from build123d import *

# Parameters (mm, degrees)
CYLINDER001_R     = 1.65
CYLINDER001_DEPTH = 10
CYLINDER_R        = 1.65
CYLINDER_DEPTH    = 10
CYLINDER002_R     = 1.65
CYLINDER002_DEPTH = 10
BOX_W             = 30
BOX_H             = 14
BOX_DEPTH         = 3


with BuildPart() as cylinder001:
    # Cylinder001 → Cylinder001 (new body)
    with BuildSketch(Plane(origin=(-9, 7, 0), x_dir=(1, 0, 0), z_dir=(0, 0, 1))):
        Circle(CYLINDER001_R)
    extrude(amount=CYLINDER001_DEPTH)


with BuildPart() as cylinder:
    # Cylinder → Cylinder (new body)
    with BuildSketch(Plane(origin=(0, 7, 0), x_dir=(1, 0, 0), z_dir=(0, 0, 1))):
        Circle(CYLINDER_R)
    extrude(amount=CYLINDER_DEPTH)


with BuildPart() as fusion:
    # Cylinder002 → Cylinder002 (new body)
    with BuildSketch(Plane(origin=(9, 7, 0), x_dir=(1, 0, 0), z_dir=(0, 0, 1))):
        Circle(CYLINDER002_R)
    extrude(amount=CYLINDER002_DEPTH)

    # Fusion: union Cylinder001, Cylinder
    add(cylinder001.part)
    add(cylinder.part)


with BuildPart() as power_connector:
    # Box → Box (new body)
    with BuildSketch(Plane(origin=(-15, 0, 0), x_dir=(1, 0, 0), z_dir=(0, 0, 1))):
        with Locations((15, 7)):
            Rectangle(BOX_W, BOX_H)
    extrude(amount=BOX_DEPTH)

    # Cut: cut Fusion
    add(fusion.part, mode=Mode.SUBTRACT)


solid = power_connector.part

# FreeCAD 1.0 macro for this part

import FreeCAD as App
import Part
import Sketcher
from FreeCAD import Vector
Q = App.Units.Quantity


def add_polygon(sketch, points):
    """Adds a closed chain of lines whose ends are joined by coincident constraints."""
    first, n = sketch.GeometryCount, len(points)
    for a, b in zip(points, points[1:] + points[:1]):
        sketch.addGeometry(Part.LineSegment(App.Vector(*a, 0), App.Vector(*b, 0)), False)
    for i in range(n):
        sketch.addConstraint(Sketcher.Constraint("Coincident", first + i, 2, first + (i + 1) % n, 1))

doc = App.newDocument("Part")
body = doc.addObject("PartDesign::Body", "Body")

sketch1 = body.newObject("Sketcher::SketchObject", "Sketch")
sketch1.AttachmentSupport = (doc.getObject("XY_Plane"), [""])
sketch1.MapMode = "FlatFace"
sketch1.addGeometry(Part.Circle(Vector(-9, 7, 0), Vector(0, 0, 1), 1.6), False)
sketch1.addConstraint(Sketcher.Constraint("Diameter", 0, Q("3.3 mm")))
sketch1.addConstraint(Sketcher.Constraint("DistanceX", 0, 3, -1, 1, Q("9 mm")))
sketch1.addConstraint(Sketcher.Constraint("DistanceY", -1, 1, 0, 3, Q("7 mm")))
pad1 = body.newObject("PartDesign::Pad", "Pad")
pad1.Profile = sketch1
pad1.Length = 10
body2 = doc.addObject("PartDesign::Body", "Body001")

sketch2 = body2.newObject("Sketcher::SketchObject", "Sketch001")
sketch2.AttachmentSupport = (doc.getObject("XY_Plane001"), [""])
sketch2.MapMode = "FlatFace"
sketch2.addGeometry(Part.Circle(Vector(0, 7, 0), Vector(0, 0, 1), 1.6), False)
sketch2.addConstraint(Sketcher.Constraint("PointOnObject", 0, 3, -2))
sketch2.addConstraint(Sketcher.Constraint("Diameter", 0, Q("3.3 mm")))
sketch2.addConstraint(Sketcher.Constraint("DistanceY", -1, 1, 0, 3, Q("7 mm")))
pad2 = body2.newObject("PartDesign::Pad", "Pad001")
pad2.Profile = sketch2
pad2.Length = 10
body3 = doc.addObject("PartDesign::Body", "Body002")
body3.AllowCompound = True

sketch3 = body3.newObject("Sketcher::SketchObject", "Sketch002")
sketch3.AttachmentSupport = (doc.getObject("XY_Plane002"), [""])
sketch3.MapMode = "FlatFace"
sketch3.addGeometry(Part.Circle(Vector(9, 7, 0), Vector(0, 0, 1), 1.6), False)
sketch3.addConstraint(Sketcher.Constraint("Diameter", 0, Q("3.3 mm")))
sketch3.addConstraint(Sketcher.Constraint("DistanceX", -1, 1, 0, 3, Q("9 mm")))
sketch3.addConstraint(Sketcher.Constraint("DistanceY", -1, 1, 0, 3, Q("7 mm")))
pad3 = body3.newObject("PartDesign::Pad", "Pad002")
pad3.Profile = sketch3
pad3.Length = 10
doc.recompute()

boolean = body3.newObject("PartDesign::Boolean", "Boolean")
boolean.Type = "Fuse"
boolean.addObjects([body])
doc.recompute()

boolean2 = body3.newObject("PartDesign::Boolean", "Boolean001")
boolean2.Type = "Fuse"
boolean2.addObjects([body2])
body4 = doc.addObject("PartDesign::Body", "Body003")

sketch4 = body4.newObject("Sketcher::SketchObject", "Sketch003")
sketch4.AttachmentSupport = (doc.getObject("XY_Plane003"), [""])
sketch4.MapMode = "FlatFace"
add_polygon(sketch4, [(-15, 14), (-15, 0), (15, 0), (15, 14)])
sketch4.addConstraint(Sketcher.Constraint("Vertical", 0))
sketch4.addConstraint(Sketcher.Constraint("Horizontal", 1))
sketch4.addConstraint(Sketcher.Constraint("Vertical", 2))
sketch4.addConstraint(Sketcher.Constraint("Horizontal", 3))
sketch4.addConstraint(Sketcher.Constraint("Symmetric", 0, 2, 1, 2, -1, 1))
sketch4.addConstraint(Sketcher.Constraint("DistanceX", 1, 1, 1, 2, Q("30 mm")))
sketch4.addConstraint(Sketcher.Constraint("DistanceY", 0, 2, 0, 1, Q("14 mm")))
pad4 = body4.newObject("PartDesign::Pad", "Pad003")
pad4.Profile = sketch4
pad4.Length = 3
doc.recompute()

boolean3 = body4.newObject("PartDesign::Boolean", "Boolean002")
boolean3.Type = "Cut"
boolean3.addObjects([body3])

doc.recompute()
